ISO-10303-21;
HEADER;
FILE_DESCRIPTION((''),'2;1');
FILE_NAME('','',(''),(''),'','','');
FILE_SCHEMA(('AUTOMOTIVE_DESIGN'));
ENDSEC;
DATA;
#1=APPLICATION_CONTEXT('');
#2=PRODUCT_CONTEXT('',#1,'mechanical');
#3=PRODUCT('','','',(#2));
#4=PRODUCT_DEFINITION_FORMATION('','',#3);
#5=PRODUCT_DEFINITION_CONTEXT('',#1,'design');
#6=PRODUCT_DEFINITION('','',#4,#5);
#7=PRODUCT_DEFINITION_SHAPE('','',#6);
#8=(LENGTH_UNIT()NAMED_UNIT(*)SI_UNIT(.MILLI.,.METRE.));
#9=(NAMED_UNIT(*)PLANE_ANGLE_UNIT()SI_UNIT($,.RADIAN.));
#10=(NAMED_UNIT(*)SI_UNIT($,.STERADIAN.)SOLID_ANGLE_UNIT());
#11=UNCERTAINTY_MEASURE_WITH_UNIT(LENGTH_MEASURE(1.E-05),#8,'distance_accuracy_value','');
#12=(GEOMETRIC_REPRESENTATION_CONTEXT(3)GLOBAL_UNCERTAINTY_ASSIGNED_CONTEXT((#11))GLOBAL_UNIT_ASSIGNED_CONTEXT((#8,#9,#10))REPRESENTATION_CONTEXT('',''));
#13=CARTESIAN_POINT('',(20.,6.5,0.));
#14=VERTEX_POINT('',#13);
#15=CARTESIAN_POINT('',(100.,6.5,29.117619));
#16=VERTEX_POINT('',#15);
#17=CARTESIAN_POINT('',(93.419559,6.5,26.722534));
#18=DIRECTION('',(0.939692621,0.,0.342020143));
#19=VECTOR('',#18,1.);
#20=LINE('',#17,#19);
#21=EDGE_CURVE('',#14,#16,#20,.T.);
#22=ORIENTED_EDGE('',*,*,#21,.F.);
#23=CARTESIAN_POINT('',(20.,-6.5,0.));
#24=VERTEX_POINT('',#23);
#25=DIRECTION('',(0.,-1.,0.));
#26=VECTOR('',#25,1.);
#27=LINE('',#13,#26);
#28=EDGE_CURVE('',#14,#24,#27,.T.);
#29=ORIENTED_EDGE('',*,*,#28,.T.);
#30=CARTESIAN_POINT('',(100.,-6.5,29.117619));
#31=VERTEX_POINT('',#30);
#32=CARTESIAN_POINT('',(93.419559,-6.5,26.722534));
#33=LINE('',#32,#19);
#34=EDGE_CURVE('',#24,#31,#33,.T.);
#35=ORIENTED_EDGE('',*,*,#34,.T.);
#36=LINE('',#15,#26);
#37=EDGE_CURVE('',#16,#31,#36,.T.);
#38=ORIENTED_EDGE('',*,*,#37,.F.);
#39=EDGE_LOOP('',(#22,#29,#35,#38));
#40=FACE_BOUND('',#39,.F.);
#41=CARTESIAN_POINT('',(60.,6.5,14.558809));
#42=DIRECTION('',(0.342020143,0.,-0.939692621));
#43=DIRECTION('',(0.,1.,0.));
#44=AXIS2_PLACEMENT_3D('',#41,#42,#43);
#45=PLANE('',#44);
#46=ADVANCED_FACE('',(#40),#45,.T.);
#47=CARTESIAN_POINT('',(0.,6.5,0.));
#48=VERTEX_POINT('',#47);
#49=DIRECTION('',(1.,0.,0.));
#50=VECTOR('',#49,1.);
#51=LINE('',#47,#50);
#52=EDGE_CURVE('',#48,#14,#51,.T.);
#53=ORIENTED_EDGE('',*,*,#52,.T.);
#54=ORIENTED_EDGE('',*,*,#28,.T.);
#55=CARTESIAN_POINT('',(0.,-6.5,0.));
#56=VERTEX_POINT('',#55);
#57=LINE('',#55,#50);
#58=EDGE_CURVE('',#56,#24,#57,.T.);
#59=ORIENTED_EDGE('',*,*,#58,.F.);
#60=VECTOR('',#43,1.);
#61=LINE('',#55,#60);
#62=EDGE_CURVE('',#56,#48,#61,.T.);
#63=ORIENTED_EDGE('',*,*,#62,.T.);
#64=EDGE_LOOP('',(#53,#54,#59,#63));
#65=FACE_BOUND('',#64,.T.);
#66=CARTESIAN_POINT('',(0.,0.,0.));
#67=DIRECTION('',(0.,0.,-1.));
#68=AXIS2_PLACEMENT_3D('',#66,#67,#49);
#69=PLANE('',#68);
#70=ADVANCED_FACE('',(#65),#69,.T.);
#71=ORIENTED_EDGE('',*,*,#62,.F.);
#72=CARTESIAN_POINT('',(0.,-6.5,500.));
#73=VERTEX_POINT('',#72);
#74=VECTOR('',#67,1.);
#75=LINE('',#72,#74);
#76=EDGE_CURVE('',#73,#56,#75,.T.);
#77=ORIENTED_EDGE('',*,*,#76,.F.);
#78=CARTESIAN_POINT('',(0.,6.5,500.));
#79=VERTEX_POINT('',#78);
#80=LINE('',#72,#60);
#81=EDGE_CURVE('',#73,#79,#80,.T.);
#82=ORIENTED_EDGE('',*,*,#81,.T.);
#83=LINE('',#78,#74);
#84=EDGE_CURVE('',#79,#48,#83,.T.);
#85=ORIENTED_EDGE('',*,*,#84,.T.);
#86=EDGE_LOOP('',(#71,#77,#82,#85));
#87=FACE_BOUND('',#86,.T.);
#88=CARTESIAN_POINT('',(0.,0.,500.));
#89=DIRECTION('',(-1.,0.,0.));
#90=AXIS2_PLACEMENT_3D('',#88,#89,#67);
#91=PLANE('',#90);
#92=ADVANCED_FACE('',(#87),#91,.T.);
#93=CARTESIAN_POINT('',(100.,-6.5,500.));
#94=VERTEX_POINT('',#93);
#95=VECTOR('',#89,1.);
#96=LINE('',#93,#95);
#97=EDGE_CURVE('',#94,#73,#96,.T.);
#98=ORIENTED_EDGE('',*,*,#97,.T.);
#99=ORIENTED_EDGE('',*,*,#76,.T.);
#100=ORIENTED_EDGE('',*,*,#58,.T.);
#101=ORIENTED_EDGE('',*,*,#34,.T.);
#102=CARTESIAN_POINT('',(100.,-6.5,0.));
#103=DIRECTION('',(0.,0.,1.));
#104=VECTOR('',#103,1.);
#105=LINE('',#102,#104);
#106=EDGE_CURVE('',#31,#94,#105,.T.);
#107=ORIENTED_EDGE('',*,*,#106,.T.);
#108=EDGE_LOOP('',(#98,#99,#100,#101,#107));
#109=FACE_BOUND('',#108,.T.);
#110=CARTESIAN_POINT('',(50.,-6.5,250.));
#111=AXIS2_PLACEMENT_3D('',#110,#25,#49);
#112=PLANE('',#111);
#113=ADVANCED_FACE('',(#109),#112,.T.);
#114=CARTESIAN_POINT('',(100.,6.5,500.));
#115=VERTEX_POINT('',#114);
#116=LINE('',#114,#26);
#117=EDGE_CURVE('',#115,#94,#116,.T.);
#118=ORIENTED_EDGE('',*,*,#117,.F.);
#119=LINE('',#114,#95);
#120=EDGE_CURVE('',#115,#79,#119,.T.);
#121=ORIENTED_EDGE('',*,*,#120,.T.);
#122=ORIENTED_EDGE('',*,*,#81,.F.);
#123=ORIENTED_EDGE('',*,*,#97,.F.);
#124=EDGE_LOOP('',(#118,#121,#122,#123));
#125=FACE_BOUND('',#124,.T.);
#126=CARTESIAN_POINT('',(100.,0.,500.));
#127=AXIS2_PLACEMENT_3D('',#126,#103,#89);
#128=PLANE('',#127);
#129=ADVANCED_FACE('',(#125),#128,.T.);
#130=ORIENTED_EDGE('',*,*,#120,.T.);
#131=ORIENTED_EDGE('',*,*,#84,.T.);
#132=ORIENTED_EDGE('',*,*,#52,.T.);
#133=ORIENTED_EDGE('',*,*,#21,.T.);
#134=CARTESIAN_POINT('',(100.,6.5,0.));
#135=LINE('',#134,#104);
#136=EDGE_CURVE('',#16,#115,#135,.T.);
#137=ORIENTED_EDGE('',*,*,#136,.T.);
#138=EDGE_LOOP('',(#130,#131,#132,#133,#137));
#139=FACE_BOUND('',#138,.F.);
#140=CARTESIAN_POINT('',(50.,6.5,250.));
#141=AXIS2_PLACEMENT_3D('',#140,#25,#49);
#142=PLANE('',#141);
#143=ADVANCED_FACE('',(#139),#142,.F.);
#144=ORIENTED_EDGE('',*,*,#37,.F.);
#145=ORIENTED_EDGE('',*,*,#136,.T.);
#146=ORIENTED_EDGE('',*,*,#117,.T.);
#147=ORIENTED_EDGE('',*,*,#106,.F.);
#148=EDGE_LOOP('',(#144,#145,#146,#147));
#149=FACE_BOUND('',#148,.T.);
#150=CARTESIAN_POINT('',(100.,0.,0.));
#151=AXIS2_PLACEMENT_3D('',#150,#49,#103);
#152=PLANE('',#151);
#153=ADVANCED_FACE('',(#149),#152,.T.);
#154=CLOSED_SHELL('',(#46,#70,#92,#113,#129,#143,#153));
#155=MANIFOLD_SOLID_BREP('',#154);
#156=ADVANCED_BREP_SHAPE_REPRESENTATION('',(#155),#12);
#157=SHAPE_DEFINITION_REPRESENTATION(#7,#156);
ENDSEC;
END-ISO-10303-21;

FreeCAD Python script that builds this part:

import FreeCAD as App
import Part
import Sketcher
Q = App.Units.Quantity


def edges_at(feature, points):
    """Names of the edges that pass closest to the given points."""
    edges = feature.Shape.Edges
    near = lambda p: min(range(len(edges)), key=lambda i: edges[i].distToShape(Part.Vertex(*p))[0])
    return sorted({f"Edge{near(p) + 1}" for p in points})


def add_polygon(sketch, points):
    """Adds a closed chain of lines whose ends are joined by coincident constraints."""
    first, n = sketch.GeometryCount, len(points)
    for a, b in zip(points, points[1:] + points[:1]):
        sketch.addGeometry(Part.LineSegment(App.Vector(*a, 0), App.Vector(*b, 0)), False)
    for i in range(n):
        sketch.addConstraint(Sketcher.Constraint("Coincident", first + i, 2, first + (i + 1) % n, 1))

doc = App.newDocument("Part")
params = doc.addObject("Spreadsheet::Sheet", "Params")
for row, (alias, value) in enumerate([
    ("sketch1_width", "100 mm"),
    ("sketch1_height", "500 mm"),
    ("pad1_length", "13 mm"),
    ("chamfer_size", "80 mm"),
], start=1):
    params.set(f"A{row}", alias)
    params.set(f"B{row}", "=" + value)
    params.setAlias(f"B{row}", alias)

body = doc.addObject("PartDesign::Body", "Body")

sketch1 = body.newObject("Sketcher::SketchObject", "Sketch")
sketch1.AttachmentSupport = (doc.getObject("XZ_Plane"), [""])
sketch1.MapMode = "FlatFace"
add_polygon(sketch1, [(0, 0), (100, 0), (100, 500), (0, 500)])
sketch1.addConstraint(Sketcher.Constraint("Horizontal", 0))
sketch1.addConstraint(Sketcher.Constraint("Vertical", 1))
sketch1.addConstraint(Sketcher.Constraint("Horizontal", 2))
sketch1.addConstraint(Sketcher.Constraint("Vertical", 3))
sketch1.addConstraint(Sketcher.Constraint("Coincident", 3, 2, -1, 1))
sketch1.addConstraint(Sketcher.Constraint("DistanceX", 0, 1, 0, 2, Q("100 mm")))
sketch1.addConstraint(Sketcher.Constraint("DistanceY", 1, 1, 1, 2, Q("500 mm")))
sketch1.setExpression("Constraints[9]", "Params.sketch1_width")
sketch1.setExpression("Constraints[10]", "Params.sketch1_height")
pad1 = body.newObject("PartDesign::Pad", "Pad")
pad1.Profile = sketch1
pad1.setExpression("Length", "Params.pad1_length")
pad1.Midplane = True
doc.recompute()

chamfer = body.newObject("PartDesign::Chamfer", "Chamfer")
chamfer.Base = (pad1, edges_at(pad1, [(100, 0, 0)]))
chamfer.ChamferType = "Distance and Angle"
chamfer.setExpression("Size", "Params.chamfer_size")
chamfer.Angle = 20

doc.recompute()
